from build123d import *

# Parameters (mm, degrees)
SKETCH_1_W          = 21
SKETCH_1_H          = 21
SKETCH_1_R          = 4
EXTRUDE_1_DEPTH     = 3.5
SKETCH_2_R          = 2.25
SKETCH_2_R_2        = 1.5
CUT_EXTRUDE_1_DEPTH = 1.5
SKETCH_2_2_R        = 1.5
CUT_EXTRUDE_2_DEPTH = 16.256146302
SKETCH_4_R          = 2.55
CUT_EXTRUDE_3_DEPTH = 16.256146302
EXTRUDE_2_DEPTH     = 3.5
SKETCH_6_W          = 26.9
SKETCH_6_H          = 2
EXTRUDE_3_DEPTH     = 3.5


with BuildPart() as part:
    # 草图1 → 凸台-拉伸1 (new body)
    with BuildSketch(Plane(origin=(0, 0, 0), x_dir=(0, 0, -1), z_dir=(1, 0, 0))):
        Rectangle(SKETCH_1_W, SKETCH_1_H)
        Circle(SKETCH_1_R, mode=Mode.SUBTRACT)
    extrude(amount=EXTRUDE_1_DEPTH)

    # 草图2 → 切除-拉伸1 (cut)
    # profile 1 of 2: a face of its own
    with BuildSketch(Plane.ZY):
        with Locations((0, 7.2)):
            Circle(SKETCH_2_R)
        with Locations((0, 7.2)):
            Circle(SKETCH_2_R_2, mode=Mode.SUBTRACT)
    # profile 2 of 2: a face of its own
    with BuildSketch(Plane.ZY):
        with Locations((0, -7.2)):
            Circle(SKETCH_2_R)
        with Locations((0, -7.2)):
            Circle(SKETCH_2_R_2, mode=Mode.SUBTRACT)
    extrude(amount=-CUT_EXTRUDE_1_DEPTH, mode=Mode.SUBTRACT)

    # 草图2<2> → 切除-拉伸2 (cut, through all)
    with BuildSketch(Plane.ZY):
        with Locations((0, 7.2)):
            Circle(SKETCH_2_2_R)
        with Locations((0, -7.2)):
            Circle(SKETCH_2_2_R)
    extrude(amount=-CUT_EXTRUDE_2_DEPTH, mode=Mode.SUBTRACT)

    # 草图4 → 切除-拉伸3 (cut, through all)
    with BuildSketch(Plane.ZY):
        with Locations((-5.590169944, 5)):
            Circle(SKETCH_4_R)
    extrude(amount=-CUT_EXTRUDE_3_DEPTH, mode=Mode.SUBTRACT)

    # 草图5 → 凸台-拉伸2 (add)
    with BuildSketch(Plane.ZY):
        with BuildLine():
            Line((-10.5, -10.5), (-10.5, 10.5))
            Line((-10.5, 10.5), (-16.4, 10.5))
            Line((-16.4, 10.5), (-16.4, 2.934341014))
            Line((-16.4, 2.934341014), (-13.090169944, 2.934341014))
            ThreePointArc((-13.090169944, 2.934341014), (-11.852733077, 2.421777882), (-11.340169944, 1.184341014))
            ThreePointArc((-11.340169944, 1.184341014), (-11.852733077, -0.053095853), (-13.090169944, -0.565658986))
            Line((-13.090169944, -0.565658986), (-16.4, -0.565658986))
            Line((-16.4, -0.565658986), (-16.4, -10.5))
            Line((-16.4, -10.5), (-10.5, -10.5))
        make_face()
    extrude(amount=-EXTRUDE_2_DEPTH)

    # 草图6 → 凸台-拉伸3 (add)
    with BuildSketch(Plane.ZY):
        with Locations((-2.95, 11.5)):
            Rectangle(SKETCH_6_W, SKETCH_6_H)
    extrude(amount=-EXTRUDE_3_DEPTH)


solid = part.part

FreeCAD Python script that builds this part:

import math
import FreeCAD as App
import Part
import Sketcher

V = App.Vector

doc = App.newDocument("Part")
params = doc.addObject("Spreadsheet::Sheet", "Params")
for row, (alias, value) in enumerate([
    ("sketch1_diameter", "8 mm"),
    ("sketch1_width", "21 mm"),
    ("pad1_length", "3.5 mm"),
    ("sketch2_diameter", "3 mm"),
    ("sketch2_diameter2", "4.5 mm"),
    ("pocket1_length", "1.5 mm"),
    ("sketch3_diameter", "3 mm"),
    ("sketch4_diameter", "5.1 mm"),
    ("sketch5_width", "21 mm"),
    ("sketch5_radius", "1.75 mm"),
    ("sketch5_height", "5.9 mm"),
    ("pad2_length", "3.5 mm"),
    ("sketch6_width", "2 mm"),
    ("sketch6_height", "26.9 mm"),
    ("pad3_length", "3.5 mm"),
], start=1):
    params.set(f"A{row}", alias)
    params.set(f"B{row}", "=" + value)
    params.setAlias(f"B{row}", alias)

body = doc.addObject("PartDesign::Body", "Body")

# Sketch on YZ plane
sketch1 = doc.addObject("Sketcher::SketchObject", "Sketch")
body.addObject(sketch1)
sketch1.AttachmentSupport = (doc.YZ_Plane, [""])
sketch1.MapMode = "FlatFace"
sketch1.addGeometry(Part.LineSegment(V(10.5, 10.5, 0), V(-10.5, 10.5, 0)), False)
sketch1.addGeometry(Part.LineSegment(V(-10.5, 10.5, 0), V(-10.5, -10.5, 0)), False)
sketch1.addGeometry(Part.LineSegment(V(-10.5, -10.5, 0), V(10.5, -10.5, 0)), False)
sketch1.addGeometry(Part.LineSegment(V(10.5, -10.5, 0), V(10.5, 10.5, 0)), False)
sketch1.addGeometry(Part.Circle(V(0, 0, 0), V(0, 0, 1), 4), False)
sketch1.addConstraint(Sketcher.Constraint("Coincident", 0, 2, 1, 1))
sketch1.addConstraint(Sketcher.Constraint("Coincident", 1, 2, 2, 1))
sketch1.addConstraint(Sketcher.Constraint("Coincident", 2, 2, 3, 1))
sketch1.addConstraint(Sketcher.Constraint("Coincident", 3, 2, 0, 1))
sketch1.addConstraint(Sketcher.Constraint("Horizontal", 0))
sketch1.addConstraint(Sketcher.Constraint("Vertical", 1))
sketch1.addConstraint(Sketcher.Constraint("Horizontal", 2))
sketch1.addConstraint(Sketcher.Constraint("Vertical", 3))
sketch1.addConstraint(Sketcher.Constraint("Coincident", 4, 3, -1, 1))
sketch1.addConstraint(Sketcher.Constraint("Symmetric", 0, 2, 2, 2, -1, 1))
sketch1.addConstraint(Sketcher.Constraint("Equal", 2, 1))
sketch1.addConstraint(Sketcher.Constraint("Diameter", 4, 8.0))
sketch1.addConstraint(Sketcher.Constraint("DistanceX", 0, 2, 0, 1, 21.0))
sketch1.setExpression("Constraints[11]", "Params.sketch1_diameter")
sketch1.setExpression("Constraints[12]", "Params.sketch1_width")
pad1 = doc.addObject("PartDesign::Pad", "Pad")
body.addObject(pad1)
pad1.Profile = sketch1
pad1.setExpression("Length", "Params.pad1_length")

# Sketch on YZ plane
sketch2 = doc.addObject("Sketcher::SketchObject", "Sketch001")
body.addObject(sketch2)
sketch2.AttachmentSupport = (doc.YZ_Plane, [""])
sketch2.MapMode = "FlatFace"
sketch2.addGeometry(Part.Circle(V(7.2, 0, 0), V(0, 0, 1), 2.2), False)
sketch2.addGeometry(Part.Circle(V(7.2, 0, 0), V(0, 0, 1), 1.5), False)
sketch2.addGeometry(Part.Circle(V(-7.2, 0, 0), V(0, 0, 1), 2.2), False)
sketch2.addGeometry(Part.Circle(V(-7.2, 0, 0), V(0, 0, 1), 1.5), False)
sketch2.addConstraint(Sketcher.Constraint("Coincident", 1, 3, 0, 3))
sketch2.addConstraint(Sketcher.Constraint("Coincident", 3, 3, 2, 3))
sketch2.addConstraint(Sketcher.Constraint("Equal", 0, 2))
sketch2.addConstraint(Sketcher.Constraint("Equal", 1, 3))
sketch2.addConstraint(Sketcher.Constraint("Symmetric", 0, 3, 2, 3, -1, 1))
sketch2.addConstraint(Sketcher.Constraint("PointOnObject", 0, 3, -1))
sketch2.addConstraint(Sketcher.Constraint("Diameter", 1, 3.0))
sketch2.addConstraint(Sketcher.Constraint("Diameter", 0, 4.5))
sketch2.addConstraint(Sketcher.Constraint("DistanceX", -1, 1, 0, 3, 7.2))
sketch2.setExpression("Constraints[6]", "Params.sketch2_diameter")
sketch2.setExpression("Constraints[7]", "Params.sketch2_diameter2")
pocket1 = doc.addObject("PartDesign::Pocket", "Pocket")
body.addObject(pocket1)
pocket1.Profile = sketch2
pocket1.setExpression("Length", "Params.pocket1_length")
pocket1.Reversed = True

# Sketch on YZ plane
sketch3 = doc.addObject("Sketcher::SketchObject", "Sketch002")
body.addObject(sketch3)
sketch3.AttachmentSupport = (doc.YZ_Plane, [""])
sketch3.MapMode = "FlatFace"
sketch3.addGeometry(Part.Circle(V(7.2, 0, 0), V(0, 0, 1), 1.5), False)
sketch3.addGeometry(Part.Circle(V(-7.2, 0, 0), V(0, 0, 1), 1.5), False)
sketch3.addConstraint(Sketcher.Constraint("Equal", 0, 1))
sketch3.addConstraint(Sketcher.Constraint("Symmetric", 0, 3, 1, 3, -1, 1))
sketch3.addConstraint(Sketcher.Constraint("PointOnObject", 0, 3, -1))
sketch3.addConstraint(Sketcher.Constraint("Diameter", 0, 3.0))
sketch3.addConstraint(Sketcher.Constraint("DistanceX", -1, 1, 0, 3, 7.2))
sketch3.setExpression("Constraints[3]", "Params.sketch3_diameter")
pocket2 = doc.addObject("PartDesign::Pocket", "Pocket001")
body.addObject(pocket2)
pocket2.Profile = sketch3
pocket2.Type = "ThroughAll"
pocket2.Reversed = True

# Sketch on YZ plane
sketch4 = doc.addObject("Sketcher::SketchObject", "Sketch003")
body.addObject(sketch4)
sketch4.AttachmentSupport = (doc.YZ_Plane, [""])
sketch4.MapMode = "FlatFace"
sketch4.addGeometry(Part.Circle(V(5, -5.6, 0), V(0, 0, 1), 2.5), False)
sketch4.addConstraint(Sketcher.Constraint("Diameter", 0, 5.1))
sketch4.addConstraint(Sketcher.Constraint("DistanceX", -1, 1, 0, 3, 5.0))
sketch4.addConstraint(Sketcher.Constraint("DistanceY", 0, 3, -1, 1, 5.59017))
sketch4.setExpression("Constraints[0]", "Params.sketch4_diameter")
pocket3 = doc.addObject("PartDesign::Pocket", "Pocket002")
body.addObject(pocket3)
pocket3.Profile = sketch4
pocket3.Type = "ThroughAll"
pocket3.Reversed = True

# Sketch on YZ plane
sketch5 = doc.addObject("Sketcher::SketchObject", "Sketch004")
body.addObject(sketch5)
sketch5.AttachmentSupport = (doc.YZ_Plane, [""])
sketch5.MapMode = "FlatFace"
sketch5.addGeometry(Part.LineSegment(V(-10.5, -10.5, 0), V(10.5, -10.5, 0)), False)
sketch5.addGeometry(Part.LineSegment(V(10.5, -10.5, 0), V(10.5, -16.4, 0)), False)
sketch5.addGeometry(Part.LineSegment(V(10.5, -16.4, 0), V(2.9, -16.4, 0)), False)
sketch5.addGeometry(Part.LineSegment(V(2.9, -16.4, 0), V(2.9, -13.1, 0)), False)
sketch5.addGeometry(Part.ArcOfCircle(Part.Circle(V(1.2, -13.1, 0), V(0, 0, 1), 1.7), math.radians(0), math.radians(90)), False)
sketch5.addGeometry(Part.ArcOfCircle(Part.Circle(V(1.2, -13.1, 0), V(0, 0, 1), 1.8), math.radians(90), math.radians(180)), False)
sketch5.addGeometry(Part.LineSegment(V(-0.6, -13.1, 0), V(-0.6, -16.4, 0)), False)
sketch5.addGeometry(Part.LineSegment(V(-0.6, -16.4, 0), V(-10.5, -16.4, 0)), False)
sketch5.addGeometry(Part.LineSegment(V(-10.5, -16.4, 0), V(-10.5, -10.5, 0)), False)
sketch5.addConstraint(Sketcher.Constraint("Coincident", 0, 2, 1, 1))
sketch5.addConstraint(Sketcher.Constraint("Coincident", 1, 2, 2, 1))
sketch5.addConstraint(Sketcher.Constraint("Coincident", 2, 2, 3, 1))
sketch5.addConstraint(Sketcher.Constraint("Tangent", 3, 2, 4, 1))
sketch5.addConstraint(Sketcher.Constraint("Tangent", 4, 2, 5, 1))
sketch5.addConstraint(Sketcher.Constraint("Tangent", 5, 2, 6, 1))
sketch5.addConstraint(Sketcher.Constraint("Coincident", 6, 2, 7, 1))
sketch5.addConstraint(Sketcher.Constraint("Coincident", 7, 2, 8, 1))
sketch5.addConstraint(Sketcher.Constraint("Coincident", 8, 2, 0, 1))
sketch5.addConstraint(Sketcher.Constraint("Horizontal", 0))
sketch5.addConstraint(Sketcher.Constraint("Vertical", 1))
sketch5.addConstraint(Sketcher.Constraint("Horizontal", 2))
sketch5.addConstraint(Sketcher.Constraint("Vertical", 3))
sketch5.addConstraint(Sketcher.Constraint("Vertical", 6))
sketch5.addConstraint(Sketcher.Constraint("Horizontal", 7))
sketch5.addConstraint(Sketcher.Constraint("Vertical", 8))
sketch5.addConstraint(Sketcher.Constraint("Equal", 4, 5))
sketch5.addConstraint(Sketcher.Constraint("Symmetric", 1, 2, 7, 2, -2))
sketch5.addConstraint(Sketcher.Constraint("Vertical", 5, 3, 4, 2))
sketch5.addConstraint(Sketcher.Constraint("DistanceX", 0, 1, 0, 2, 21.0))
sketch5.addConstraint(Sketcher.Constraint("Radius", 4, 1.75))
sketch5.addConstraint(Sketcher.Constraint("DistanceY", 1, 2, 1, 1, 5.9))
sketch5.addConstraint(Sketcher.Constraint("DistanceY", 0, 2, -1, 1, 10.5))
sketch5.addConstraint(Sketcher.Constraint("DistanceX", 2, 2, 2, 1, 7.565659))
sketch5.addConstraint(Sketcher.Constraint("DistanceY", 3, 1, 3, 2, 3.30983))
sketch5.setExpression("Constraints[19]", "Params.sketch5_width")
sketch5.setExpression("Constraints[20]", "Params.sketch5_radius")
sketch5.setExpression("Constraints[21]", "Params.sketch5_height")
pad2 = doc.addObject("PartDesign::Pad", "Pad001")
body.addObject(pad2)
pad2.Profile = sketch5
pad2.setExpression("Length", "Params.pad2_length")

# Sketch on YZ plane
sketch6 = doc.addObject("Sketcher::SketchObject", "Sketch005")
body.addObject(sketch6)
sketch6.AttachmentSupport = (doc.YZ_Plane, [""])
sketch6.MapMode = "FlatFace"
sketch6.addGeometry(Part.LineSegment(V(12.5, -16.4, 0), V(10.5, -16.4, 0)), False)
sketch6.addGeometry(Part.LineSegment(V(10.5, -16.4, 0), V(10.5, 10.5, 0)), False)
sketch6.addGeometry(Part.LineSegment(V(10.5, 10.5, 0), V(12.5, 10.5, 0)), False)
sketch6.addGeometry(Part.LineSegment(V(12.5, 10.5, 0), V(12.5, -16.4, 0)), False)
sketch6.addConstraint(Sketcher.Constraint("Coincident", 0, 2, 1, 1))
sketch6.addConstraint(Sketcher.Constraint("Coincident", 1, 2, 2, 1))
sketch6.addConstraint(Sketcher.Constraint("Coincident", 2, 2, 3, 1))
sketch6.addConstraint(Sketcher.Constraint("Coincident", 3, 2, 0, 1))
sketch6.addConstraint(Sketcher.Constraint("Horizontal", 0))
sketch6.addConstraint(Sketcher.Constraint("Vertical", 1))
sketch6.addConstraint(Sketcher.Constraint("Horizontal", 2))
sketch6.addConstraint(Sketcher.Constraint("Vertical", 3))
sketch6.addConstraint(Sketcher.Constraint("DistanceX", 0, 2, 0, 1, 2.0))
sketch6.addConstraint(Sketcher.Constraint("DistanceY", 1, 1, 1, 2, 26.9))
sketch6.addConstraint(Sketcher.Constraint("DistanceX", -1, 1, 0, 2, 10.5))
sketch6.addConstraint(Sketcher.Constraint("DistanceY", 0, 2, -1, 1, 16.4))
sketch6.setExpression("Constraints[8]", "Params.sketch6_width")
sketch6.setExpression("Constraints[9]", "Params.sketch6_height")
pad3 = doc.addObject("PartDesign::Pad", "Pad002")
body.addObject(pad3)
pad3.Profile = sketch6
pad3.setExpression("Length", "Params.pad3_length")

doc.recompute()
